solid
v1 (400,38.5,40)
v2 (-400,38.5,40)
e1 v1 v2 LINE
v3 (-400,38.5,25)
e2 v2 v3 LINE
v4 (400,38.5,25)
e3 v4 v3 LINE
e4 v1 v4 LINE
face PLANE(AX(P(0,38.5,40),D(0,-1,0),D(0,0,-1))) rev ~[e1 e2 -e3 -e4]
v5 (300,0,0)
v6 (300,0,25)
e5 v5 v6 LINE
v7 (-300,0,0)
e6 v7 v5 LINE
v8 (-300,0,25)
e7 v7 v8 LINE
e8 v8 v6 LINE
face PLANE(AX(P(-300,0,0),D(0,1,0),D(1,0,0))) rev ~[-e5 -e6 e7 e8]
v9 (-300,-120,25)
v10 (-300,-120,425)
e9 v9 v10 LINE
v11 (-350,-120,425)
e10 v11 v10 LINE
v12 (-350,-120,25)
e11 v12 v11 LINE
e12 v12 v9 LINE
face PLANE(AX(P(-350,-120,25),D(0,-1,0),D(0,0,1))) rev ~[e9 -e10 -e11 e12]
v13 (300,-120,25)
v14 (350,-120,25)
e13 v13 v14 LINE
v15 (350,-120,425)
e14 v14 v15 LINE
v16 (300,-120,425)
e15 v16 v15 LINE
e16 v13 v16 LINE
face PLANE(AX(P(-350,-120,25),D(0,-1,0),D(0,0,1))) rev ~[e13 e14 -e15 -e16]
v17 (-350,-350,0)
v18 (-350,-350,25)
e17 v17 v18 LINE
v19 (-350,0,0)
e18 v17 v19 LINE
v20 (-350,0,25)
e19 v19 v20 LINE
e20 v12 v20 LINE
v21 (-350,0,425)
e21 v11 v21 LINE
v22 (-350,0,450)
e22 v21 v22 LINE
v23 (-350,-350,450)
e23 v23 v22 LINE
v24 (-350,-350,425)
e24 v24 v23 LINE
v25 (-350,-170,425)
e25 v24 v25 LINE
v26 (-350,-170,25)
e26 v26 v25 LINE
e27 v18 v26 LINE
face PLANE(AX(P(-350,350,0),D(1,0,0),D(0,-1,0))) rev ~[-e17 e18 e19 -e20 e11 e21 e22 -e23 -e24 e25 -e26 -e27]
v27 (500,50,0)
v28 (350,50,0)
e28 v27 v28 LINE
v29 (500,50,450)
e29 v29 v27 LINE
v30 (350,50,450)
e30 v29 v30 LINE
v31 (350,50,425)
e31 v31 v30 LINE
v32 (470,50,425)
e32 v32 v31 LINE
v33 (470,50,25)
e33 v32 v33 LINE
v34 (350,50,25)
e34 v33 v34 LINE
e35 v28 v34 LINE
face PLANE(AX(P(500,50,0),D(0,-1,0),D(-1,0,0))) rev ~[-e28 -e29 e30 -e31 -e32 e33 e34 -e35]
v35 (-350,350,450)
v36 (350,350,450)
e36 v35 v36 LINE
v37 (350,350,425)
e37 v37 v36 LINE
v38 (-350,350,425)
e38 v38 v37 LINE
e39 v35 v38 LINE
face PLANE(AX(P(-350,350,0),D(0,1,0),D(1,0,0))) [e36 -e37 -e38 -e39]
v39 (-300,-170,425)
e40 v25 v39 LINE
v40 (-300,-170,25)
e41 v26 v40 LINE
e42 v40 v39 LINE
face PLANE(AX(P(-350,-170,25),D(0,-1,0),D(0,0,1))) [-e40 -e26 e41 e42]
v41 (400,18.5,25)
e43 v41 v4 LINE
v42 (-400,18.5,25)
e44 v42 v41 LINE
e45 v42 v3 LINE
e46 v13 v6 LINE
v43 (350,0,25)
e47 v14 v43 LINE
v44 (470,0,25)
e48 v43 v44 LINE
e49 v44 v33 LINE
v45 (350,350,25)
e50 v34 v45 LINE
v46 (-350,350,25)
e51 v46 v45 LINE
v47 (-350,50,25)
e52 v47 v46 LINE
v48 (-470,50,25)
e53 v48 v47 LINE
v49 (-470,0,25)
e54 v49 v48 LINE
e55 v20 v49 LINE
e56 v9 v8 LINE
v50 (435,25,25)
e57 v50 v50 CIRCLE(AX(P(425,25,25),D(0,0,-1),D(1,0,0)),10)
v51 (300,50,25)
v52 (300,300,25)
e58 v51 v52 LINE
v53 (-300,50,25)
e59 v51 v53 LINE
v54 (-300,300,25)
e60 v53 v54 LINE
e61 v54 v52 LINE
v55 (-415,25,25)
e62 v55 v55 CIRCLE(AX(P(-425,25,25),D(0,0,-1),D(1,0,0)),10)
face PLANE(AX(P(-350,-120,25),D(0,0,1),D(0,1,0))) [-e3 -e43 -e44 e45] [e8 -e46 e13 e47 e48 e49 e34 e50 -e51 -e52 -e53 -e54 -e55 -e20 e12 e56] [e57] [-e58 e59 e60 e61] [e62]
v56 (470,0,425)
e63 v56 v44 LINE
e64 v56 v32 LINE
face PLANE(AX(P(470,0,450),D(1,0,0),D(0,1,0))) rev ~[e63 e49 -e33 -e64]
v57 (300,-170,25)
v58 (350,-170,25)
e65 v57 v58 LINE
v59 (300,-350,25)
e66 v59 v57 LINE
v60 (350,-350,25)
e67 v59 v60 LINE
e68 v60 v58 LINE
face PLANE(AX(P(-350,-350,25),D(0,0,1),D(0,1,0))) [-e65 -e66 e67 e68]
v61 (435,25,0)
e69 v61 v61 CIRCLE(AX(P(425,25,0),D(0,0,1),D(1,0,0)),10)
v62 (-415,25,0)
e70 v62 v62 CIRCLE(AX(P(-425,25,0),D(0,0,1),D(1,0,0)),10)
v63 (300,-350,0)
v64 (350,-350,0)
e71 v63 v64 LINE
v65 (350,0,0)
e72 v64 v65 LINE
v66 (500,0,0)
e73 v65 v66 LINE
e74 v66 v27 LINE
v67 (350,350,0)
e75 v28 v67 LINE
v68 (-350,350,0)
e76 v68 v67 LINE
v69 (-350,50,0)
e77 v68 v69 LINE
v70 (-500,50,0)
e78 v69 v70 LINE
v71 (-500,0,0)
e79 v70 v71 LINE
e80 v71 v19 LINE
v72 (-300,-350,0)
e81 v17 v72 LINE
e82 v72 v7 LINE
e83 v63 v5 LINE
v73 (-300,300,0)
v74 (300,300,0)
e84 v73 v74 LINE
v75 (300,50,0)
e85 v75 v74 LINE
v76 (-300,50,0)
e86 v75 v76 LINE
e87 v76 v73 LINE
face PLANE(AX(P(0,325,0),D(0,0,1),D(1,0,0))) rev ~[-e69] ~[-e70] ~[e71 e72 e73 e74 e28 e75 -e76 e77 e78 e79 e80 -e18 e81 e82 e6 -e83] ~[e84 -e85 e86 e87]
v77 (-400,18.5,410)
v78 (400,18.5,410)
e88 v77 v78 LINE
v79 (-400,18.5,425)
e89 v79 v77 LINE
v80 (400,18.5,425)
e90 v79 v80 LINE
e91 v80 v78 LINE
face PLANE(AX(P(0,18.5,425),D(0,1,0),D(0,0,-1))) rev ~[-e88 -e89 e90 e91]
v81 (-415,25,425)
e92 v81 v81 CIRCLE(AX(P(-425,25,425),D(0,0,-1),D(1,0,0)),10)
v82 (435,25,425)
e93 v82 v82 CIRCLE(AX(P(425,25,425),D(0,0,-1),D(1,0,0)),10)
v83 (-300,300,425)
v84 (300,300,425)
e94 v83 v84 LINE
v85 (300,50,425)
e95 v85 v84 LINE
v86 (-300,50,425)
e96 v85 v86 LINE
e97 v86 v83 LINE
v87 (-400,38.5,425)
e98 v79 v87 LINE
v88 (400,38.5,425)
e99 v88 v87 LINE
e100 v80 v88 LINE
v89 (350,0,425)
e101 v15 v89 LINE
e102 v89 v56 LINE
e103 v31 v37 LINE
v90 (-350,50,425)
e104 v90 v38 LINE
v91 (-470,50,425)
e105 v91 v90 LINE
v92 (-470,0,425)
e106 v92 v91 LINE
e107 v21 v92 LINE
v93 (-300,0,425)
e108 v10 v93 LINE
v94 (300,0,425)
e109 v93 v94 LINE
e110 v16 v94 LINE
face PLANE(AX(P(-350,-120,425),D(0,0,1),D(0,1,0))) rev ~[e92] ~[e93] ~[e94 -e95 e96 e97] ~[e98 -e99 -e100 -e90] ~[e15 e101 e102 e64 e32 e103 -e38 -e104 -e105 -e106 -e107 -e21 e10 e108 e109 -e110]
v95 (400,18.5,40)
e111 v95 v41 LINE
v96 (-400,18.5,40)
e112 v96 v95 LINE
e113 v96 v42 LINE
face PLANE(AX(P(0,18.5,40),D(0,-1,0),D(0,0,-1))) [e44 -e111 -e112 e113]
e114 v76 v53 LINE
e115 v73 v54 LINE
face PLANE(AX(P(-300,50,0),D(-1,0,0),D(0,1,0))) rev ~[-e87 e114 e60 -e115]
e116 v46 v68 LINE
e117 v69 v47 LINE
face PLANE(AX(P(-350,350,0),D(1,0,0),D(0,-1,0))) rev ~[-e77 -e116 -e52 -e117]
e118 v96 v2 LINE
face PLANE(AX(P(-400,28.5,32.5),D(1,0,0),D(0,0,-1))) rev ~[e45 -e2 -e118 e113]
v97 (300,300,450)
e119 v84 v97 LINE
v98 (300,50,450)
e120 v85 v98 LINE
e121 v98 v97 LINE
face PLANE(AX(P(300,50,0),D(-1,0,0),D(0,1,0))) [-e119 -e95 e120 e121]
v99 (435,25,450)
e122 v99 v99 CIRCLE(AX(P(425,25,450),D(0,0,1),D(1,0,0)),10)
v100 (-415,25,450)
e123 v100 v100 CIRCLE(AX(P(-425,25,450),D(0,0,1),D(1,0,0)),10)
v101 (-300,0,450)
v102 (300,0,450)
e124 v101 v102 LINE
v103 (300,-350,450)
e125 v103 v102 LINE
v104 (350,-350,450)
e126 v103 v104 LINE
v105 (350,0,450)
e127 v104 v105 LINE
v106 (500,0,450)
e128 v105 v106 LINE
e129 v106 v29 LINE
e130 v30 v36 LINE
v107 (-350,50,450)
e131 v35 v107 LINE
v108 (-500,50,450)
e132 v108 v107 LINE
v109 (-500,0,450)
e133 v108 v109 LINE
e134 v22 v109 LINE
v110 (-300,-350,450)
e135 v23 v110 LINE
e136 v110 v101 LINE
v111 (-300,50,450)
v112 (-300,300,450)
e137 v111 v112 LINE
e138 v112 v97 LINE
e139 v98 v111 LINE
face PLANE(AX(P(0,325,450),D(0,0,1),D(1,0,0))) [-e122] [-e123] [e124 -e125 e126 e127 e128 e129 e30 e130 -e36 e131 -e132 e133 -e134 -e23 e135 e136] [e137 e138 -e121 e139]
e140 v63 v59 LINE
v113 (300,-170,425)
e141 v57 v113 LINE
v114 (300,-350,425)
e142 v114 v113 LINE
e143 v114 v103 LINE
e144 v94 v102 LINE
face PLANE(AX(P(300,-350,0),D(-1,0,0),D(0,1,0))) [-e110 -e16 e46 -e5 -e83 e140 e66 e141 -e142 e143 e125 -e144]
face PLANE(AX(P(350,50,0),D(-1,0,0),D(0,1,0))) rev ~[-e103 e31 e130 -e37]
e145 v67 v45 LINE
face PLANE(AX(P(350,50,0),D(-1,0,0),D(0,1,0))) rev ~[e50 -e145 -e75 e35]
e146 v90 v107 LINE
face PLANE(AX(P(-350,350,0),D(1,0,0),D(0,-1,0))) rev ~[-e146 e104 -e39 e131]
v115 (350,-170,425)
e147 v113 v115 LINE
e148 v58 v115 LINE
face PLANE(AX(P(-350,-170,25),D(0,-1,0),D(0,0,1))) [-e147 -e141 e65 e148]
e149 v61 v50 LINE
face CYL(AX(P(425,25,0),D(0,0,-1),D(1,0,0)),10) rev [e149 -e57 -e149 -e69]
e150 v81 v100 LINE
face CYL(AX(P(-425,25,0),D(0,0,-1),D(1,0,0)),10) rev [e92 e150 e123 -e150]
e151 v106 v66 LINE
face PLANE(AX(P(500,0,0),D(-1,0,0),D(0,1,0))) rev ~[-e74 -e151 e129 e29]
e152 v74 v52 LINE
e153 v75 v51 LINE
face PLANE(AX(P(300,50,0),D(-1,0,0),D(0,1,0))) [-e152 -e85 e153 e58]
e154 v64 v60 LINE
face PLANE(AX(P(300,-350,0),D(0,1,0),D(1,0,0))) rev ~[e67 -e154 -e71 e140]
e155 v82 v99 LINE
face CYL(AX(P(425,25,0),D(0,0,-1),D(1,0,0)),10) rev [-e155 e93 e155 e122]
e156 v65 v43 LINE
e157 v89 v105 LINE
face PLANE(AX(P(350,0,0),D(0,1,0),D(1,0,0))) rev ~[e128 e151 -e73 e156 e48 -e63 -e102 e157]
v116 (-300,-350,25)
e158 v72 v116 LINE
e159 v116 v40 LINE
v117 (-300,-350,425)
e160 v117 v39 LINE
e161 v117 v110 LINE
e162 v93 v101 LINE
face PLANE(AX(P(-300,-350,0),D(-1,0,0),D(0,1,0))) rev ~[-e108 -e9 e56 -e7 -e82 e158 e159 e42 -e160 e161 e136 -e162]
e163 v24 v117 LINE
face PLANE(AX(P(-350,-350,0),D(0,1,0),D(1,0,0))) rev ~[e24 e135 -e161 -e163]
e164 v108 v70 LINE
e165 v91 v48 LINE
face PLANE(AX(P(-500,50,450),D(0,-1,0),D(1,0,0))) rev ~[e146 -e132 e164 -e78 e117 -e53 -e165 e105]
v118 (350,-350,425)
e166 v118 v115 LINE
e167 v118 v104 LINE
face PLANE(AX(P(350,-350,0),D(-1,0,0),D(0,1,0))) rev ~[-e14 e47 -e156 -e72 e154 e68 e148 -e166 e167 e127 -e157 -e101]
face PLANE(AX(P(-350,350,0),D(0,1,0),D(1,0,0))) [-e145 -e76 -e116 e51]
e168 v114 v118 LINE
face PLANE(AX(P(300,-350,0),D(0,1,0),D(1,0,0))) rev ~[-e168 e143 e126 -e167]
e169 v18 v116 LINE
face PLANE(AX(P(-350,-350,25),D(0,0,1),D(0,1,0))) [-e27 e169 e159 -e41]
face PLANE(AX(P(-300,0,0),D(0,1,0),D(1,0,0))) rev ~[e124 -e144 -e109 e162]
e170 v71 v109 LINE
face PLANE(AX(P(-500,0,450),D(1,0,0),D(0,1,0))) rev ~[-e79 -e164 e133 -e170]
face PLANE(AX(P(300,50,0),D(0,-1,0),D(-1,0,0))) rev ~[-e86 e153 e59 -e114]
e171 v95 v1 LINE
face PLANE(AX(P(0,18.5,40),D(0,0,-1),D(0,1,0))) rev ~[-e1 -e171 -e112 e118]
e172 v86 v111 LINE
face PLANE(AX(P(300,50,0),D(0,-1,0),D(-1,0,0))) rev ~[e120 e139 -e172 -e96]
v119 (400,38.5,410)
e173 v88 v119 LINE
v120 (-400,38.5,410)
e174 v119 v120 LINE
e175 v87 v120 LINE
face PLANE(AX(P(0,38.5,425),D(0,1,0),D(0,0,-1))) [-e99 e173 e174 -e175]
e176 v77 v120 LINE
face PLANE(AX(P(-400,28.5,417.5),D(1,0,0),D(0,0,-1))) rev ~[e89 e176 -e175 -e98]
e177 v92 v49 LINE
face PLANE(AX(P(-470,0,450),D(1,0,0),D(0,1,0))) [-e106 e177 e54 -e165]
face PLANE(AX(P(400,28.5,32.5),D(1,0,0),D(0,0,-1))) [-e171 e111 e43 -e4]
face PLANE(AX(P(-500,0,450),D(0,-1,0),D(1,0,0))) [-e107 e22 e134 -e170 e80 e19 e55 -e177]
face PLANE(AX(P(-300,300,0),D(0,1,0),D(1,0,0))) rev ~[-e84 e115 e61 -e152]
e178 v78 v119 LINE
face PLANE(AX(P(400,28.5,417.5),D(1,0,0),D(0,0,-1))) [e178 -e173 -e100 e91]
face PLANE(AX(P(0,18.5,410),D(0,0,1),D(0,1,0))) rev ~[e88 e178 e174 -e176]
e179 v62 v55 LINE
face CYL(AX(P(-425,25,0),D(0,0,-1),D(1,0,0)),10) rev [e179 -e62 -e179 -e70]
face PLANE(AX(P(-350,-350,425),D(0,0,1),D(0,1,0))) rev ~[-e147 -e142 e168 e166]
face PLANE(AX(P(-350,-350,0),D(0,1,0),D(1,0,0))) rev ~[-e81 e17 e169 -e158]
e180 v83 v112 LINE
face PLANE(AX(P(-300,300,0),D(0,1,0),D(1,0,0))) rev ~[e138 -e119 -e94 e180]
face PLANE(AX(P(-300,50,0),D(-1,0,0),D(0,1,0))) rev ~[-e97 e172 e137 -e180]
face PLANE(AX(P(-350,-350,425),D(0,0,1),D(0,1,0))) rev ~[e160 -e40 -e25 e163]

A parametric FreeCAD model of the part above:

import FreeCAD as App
import Part
import Sketcher

V = App.Vector

doc = App.newDocument("Part")
body = doc.addObject("PartDesign::Body", "Body")

sketch1 = body.newObject("Sketcher::SketchObject", "Sketch")
sketch1.AttachmentSupport = (doc.getObject("XY_Plane"), [""])
sketch1.MapMode = "FlatFace"
sketch1.addGeometry([
    Part.LineSegment(V(-350, 350, 0), V(-350, 50, 0)),
    Part.LineSegment(V(-350, 50, 0), V(-500, 50, 0)),
    Part.LineSegment(V(-500, 50, 0), V(-500, 0, 0)),
    Part.LineSegment(V(-500, 0, 0), V(-350, 0, 0)),
    Part.LineSegment(V(-350, 0, 0), V(-350, -350, 0)),
    Part.LineSegment(V(-350, -350, 0), V(-300, -350, 0)),
    Part.LineSegment(V(-300, -350, 0), V(-300, 0, 0)),
    Part.LineSegment(V(-300, 0, 0), V(300, 0, 0)),
    Part.LineSegment(V(300, 0, 0), V(300, -350, 0)),
    Part.LineSegment(V(300, -350, 0), V(350, -350, 0)),
    Part.LineSegment(V(350, -350, 0), V(350, 0, 0)),
    Part.LineSegment(V(350, 0, 0), V(500, 0, 0)),
    Part.LineSegment(V(500, 0, 0), V(500, 50, 0)),
    Part.LineSegment(V(500, 50, 0), V(350, 50, 0)),
    Part.LineSegment(V(350, 50, 0), V(350, 350, 0)),
    Part.LineSegment(V(350, 350, 0), V(-350, 350, 0)),
    Part.Circle(V(-425, 25, 0), V(0, 0, 1), 10),
    Part.Circle(V(425, 25, 0), V(0, 0, 1), 10),
    Part.LineSegment(V(-300, 50, 0), V(-300, 300, 0)),
    Part.LineSegment(V(-300, 300, 0), V(300, 300, 0)),
    Part.LineSegment(V(300, 300, 0), V(300, 50, 0)),
    Part.LineSegment(V(300, 50, 0), V(-300, 50, 0)),
], False)
sketch1.addConstraint([
    Sketcher.Constraint("Coincident", 0, 2, 1, 1),
    Sketcher.Constraint("Coincident", 1, 2, 2, 1),
    Sketcher.Constraint("Coincident", 2, 2, 3, 1),
    Sketcher.Constraint("Coincident", 3, 2, 4, 1),
    Sketcher.Constraint("Coincident", 4, 2, 5, 1),
    Sketcher.Constraint("Coincident", 5, 2, 6, 1),
    Sketcher.Constraint("Coincident", 6, 2, 7, 1),
    Sketcher.Constraint("Coincident", 7, 2, 8, 1),
    Sketcher.Constraint("Coincident", 8, 2, 9, 1),
    Sketcher.Constraint("Coincident", 9, 2, 10, 1),
    Sketcher.Constraint("Coincident", 10, 2, 11, 1),
    Sketcher.Constraint("Coincident", 11, 2, 12, 1),
    Sketcher.Constraint("Coincident", 12, 2, 13, 1),
    Sketcher.Constraint("Coincident", 13, 2, 14, 1),
    Sketcher.Constraint("Coincident", 14, 2, 15, 1),
    Sketcher.Constraint("Coincident", 15, 2, 0, 1),
    Sketcher.Constraint("Coincident", 18, 2, 19, 1),
    Sketcher.Constraint("Coincident", 19, 2, 20, 1),
    Sketcher.Constraint("Coincident", 20, 2, 21, 1),
    Sketcher.Constraint("Coincident", 21, 2, 18, 1),
    Sketcher.Constraint("Vertical", 0),
    Sketcher.Constraint("Horizontal", 1),
    Sketcher.Constraint("Vertical", 2),
    Sketcher.Constraint("Horizontal", 3),
    Sketcher.Constraint("Vertical", 4),
    Sketcher.Constraint("Horizontal", 5),
    Sketcher.Constraint("Vertical", 6),
    Sketcher.Constraint("Horizontal", 7),
    Sketcher.Constraint("Vertical", 8),
    Sketcher.Constraint("Horizontal", 9),
    Sketcher.Constraint("Vertical", 10),
    Sketcher.Constraint("Horizontal", 11),
    Sketcher.Constraint("Vertical", 12),
    Sketcher.Constraint("Horizontal", 13),
    Sketcher.Constraint("Vertical", 14),
    Sketcher.Constraint("Horizontal", 15),
    Sketcher.Constraint("Vertical", 18),
    Sketcher.Constraint("Horizontal", 19),
    Sketcher.Constraint("Vertical", 20),
    Sketcher.Constraint("Horizontal", 21),
    Sketcher.Constraint("Equal", 16, 17),
    Sketcher.Constraint("Symmetric", 6, 2, 7, 2, -1, 1),
    Sketcher.Constraint("Symmetric", 3, 2, 10, 2, -1, 1),
    Sketcher.Constraint("Symmetric", 4, 2, 14, 2, -1, 1),
    Sketcher.Constraint("Symmetric", 9, 2, 15, 2, -1, 1),
    Sketcher.Constraint("Symmetric", 16, 3, 17, 3, -2),
    Sketcher.Constraint("Symmetric", 2, 2, 11, 2, -2),
    Sketcher.Constraint("Horizontal", 1, 2, 12, 2),
    Sketcher.Constraint("Horizontal", 13, 2, 20, 2),
    Sketcher.Constraint("Vertical", 6, 2, 18, 2),
    Sketcher.Constraint("Vertical", 8, 2, 19, 2),
    Sketcher.Constraint("Equal", 9, 2),
    Sketcher.Constraint("Diameter", 16, 20.0),
    Sketcher.Constraint("DistanceX", 1, 2, 1, 1, 150.0),
    Sketcher.Constraint("DistanceX", 5, 1, 5, 2, 50.0),
    Sketcher.Constraint("DistanceX", 7, 1, 7, 2, 600.0),
    Sketcher.Constraint("DistanceY", 0, 2, 0, 1, 300.0),
    Sketcher.Constraint("DistanceY", 18, 1, 18, 2, 250.0),
    Sketcher.Constraint("DistanceX", 16, 3, -1, 1, 425.0),
    Sketcher.Constraint("DistanceY", -1, 1, 16, 3, 25.0),
])
pad1 = body.newObject("PartDesign::Pad", "Pad")
pad1.Profile = sketch1
pad1.Length = 450

sketch2 = body.newObject("Sketcher::SketchObject", "Sketch001")
sketch2.AttachmentSupport = (doc.getObject("YZ_Plane"), [""])
sketch2.MapMode = "FlatFace"
sketch2.AttachmentOffset = App.Placement(V(0, 0, -350), App.Rotation())
sketch2.addGeometry([
    Part.LineSegment(V(350, 25, 0), V(-120, 25, 0)),
    Part.LineSegment(V(-120, 25, 0), V(-120, 425, 0)),
    Part.LineSegment(V(-120, 425, 0), V(350, 425, 0)),
    Part.LineSegment(V(350, 425, 0), V(350, 25, 0)),
    Part.LineSegment(V(-170, 25, 0), V(-350, 25, 0)),
    Part.LineSegment(V(-350, 25, 0), V(-350, 425, 0)),
    Part.LineSegment(V(-350, 425, 0), V(-170, 425, 0)),
    Part.LineSegment(V(-170, 425, 0), V(-170, 25, 0)),
], False)
sketch2.addConstraint([
    Sketcher.Constraint("Coincident", 0, 2, 1, 1),
    Sketcher.Constraint("Coincident", 1, 2, 2, 1),
    Sketcher.Constraint("Coincident", 2, 2, 3, 1),
    Sketcher.Constraint("Coincident", 3, 2, 0, 1),
    Sketcher.Constraint("Coincident", 4, 2, 5, 1),
    Sketcher.Constraint("Coincident", 5, 2, 6, 1),
    Sketcher.Constraint("Coincident", 6, 2, 7, 1),
    Sketcher.Constraint("Coincident", 7, 2, 4, 1),
    Sketcher.Constraint("Horizontal", 0),
    Sketcher.Constraint("Vertical", 1),
    Sketcher.Constraint("Horizontal", 2),
    Sketcher.Constraint("Vertical", 3),
    Sketcher.Constraint("Horizontal", 4),
    Sketcher.Constraint("Vertical", 5),
    Sketcher.Constraint("Horizontal", 6),
    Sketcher.Constraint("Vertical", 7),
    Sketcher.Constraint("Symmetric", 3, 2, 4, 2, -2),
    Sketcher.Constraint("Horizontal", 2, 2, 5, 2),
    Sketcher.Constraint("DistanceX", 0, 2, 0, 1, 470.0),
    Sketcher.Constraint("DistanceX", 4, 2, 4, 1, 180.0),
    Sketcher.Constraint("DistanceY", 1, 1, 1, 2, 400.0),
    Sketcher.Constraint("DistanceX", 0, 2, -1, 1, 120.0),
    Sketcher.Constraint("DistanceY", -1, 1, 0, 2, 25.0),
])
pocket1 = body.newObject("PartDesign::Pocket", "Pocket")
pocket1.Profile = sketch2
pocket1.Type = "ThroughAll"
pocket1.Midplane = True

sketch3 = body.newObject("Sketcher::SketchObject", "Sketch002")
sketch3.AttachmentSupport = (doc.getObject("XY_Plane"), [""])
sketch3.MapMode = "FlatFace"
sketch3.AttachmentOffset = App.Placement(V(0, 0, 450), App.Rotation())
sketch3.addGeometry([
    Part.LineSegment(V(-500, 50, 0), V(-500, 0, 0)),
    Part.LineSegment(V(-500, 0, 0), V(-470, 0, 0)),
    Part.LineSegment(V(-470, 0, 0), V(-470, 50, 0)),
    Part.LineSegment(V(-470, 50, 0), V(-500, 50, 0)),
    Part.LineSegment(V(470, 50, 0), V(470, 0, 0)),
    Part.LineSegment(V(470, 0, 0), V(500, 0, 0)),
    Part.LineSegment(V(500, 0, 0), V(500, 50, 0)),
    Part.LineSegment(V(500, 50, 0), V(470, 50, 0)),
], False)
sketch3.addConstraint([
    Sketcher.Constraint("Coincident", 0, 2, 1, 1),
    Sketcher.Constraint("Coincident", 1, 2, 2, 1),
    Sketcher.Constraint("Coincident", 2, 2, 3, 1),
    Sketcher.Constraint("Coincident", 3, 2, 0, 1),
    Sketcher.Constraint("Coincident", 4, 2, 5, 1),
    Sketcher.Constraint("Coincident", 5, 2, 6, 1),
    Sketcher.Constraint("Coincident", 6, 2, 7, 1),
    Sketcher.Constraint("Coincident", 7, 2, 4, 1),
    Sketcher.Constraint("Vertical", 0),
    Sketcher.Constraint("Horizontal", 1),
    Sketcher.Constraint("Vertical", 2),
    Sketcher.Constraint("Horizontal", 3),
    Sketcher.Constraint("Vertical", 4),
    Sketcher.Constraint("Horizontal", 5),
    Sketcher.Constraint("Vertical", 6),
    Sketcher.Constraint("Horizontal", 7),
    Sketcher.Constraint("Symmetric", 1, 2, 4, 2, -1, 1),
    Sketcher.Constraint("Symmetric", 0, 2, 5, 2, -2),
    Sketcher.Constraint("Horizontal", 3, 2, 6, 2),
    Sketcher.Constraint("DistanceX", 1, 1, 1, 2, 30.0),
    Sketcher.Constraint("DistanceY", 0, 2, 0, 1, 50.0),
    Sketcher.Constraint("DistanceX", 0, 2, -1, 1, 500.0),
])
pad2 = body.newObject("PartDesign::Pad", "Pad001")
pad2.Profile = sketch3
pad2.Length = 425
pad2.Reversed = True

sketch4 = body.newObject("Sketcher::SketchObject", "Sketch003")
sketch4.AttachmentSupport = (doc.getObject("YZ_Plane"), [""])
sketch4.MapMode = "FlatFace"
sketch4.addGeometry([
    Part.LineSegment(V(38, 40, 0), V(18, 40, 0)),
    Part.LineSegment(V(18, 40, 0), V(18, 25, 0)),
    Part.LineSegment(V(18, 25, 0), V(38, 25, 0)),
    Part.LineSegment(V(38, 25, 0), V(38, 40, 0)),
    Part.LineSegment(V(38, 425, 0), V(18, 425, 0)),
    Part.LineSegment(V(18, 425, 0), V(18, 410, 0)),
    Part.LineSegment(V(18, 410, 0), V(38, 410, 0)),
    Part.LineSegment(V(38, 410, 0), V(38, 425, 0)),
], False)
sketch4.addConstraint([
    Sketcher.Constraint("Coincident", 0, 2, 1, 1),
    Sketcher.Constraint("Coincident", 1, 2, 2, 1),
    Sketcher.Constraint("Coincident", 2, 2, 3, 1),
    Sketcher.Constraint("Coincident", 3, 2, 0, 1),
    Sketcher.Constraint("Coincident", 4, 2, 5, 1),
    Sketcher.Constraint("Coincident", 5, 2, 6, 1),
    Sketcher.Constraint("Coincident", 6, 2, 7, 1),
    Sketcher.Constraint("Coincident", 7, 2, 4, 1),
    Sketcher.Constraint("Horizontal", 0),
    Sketcher.Constraint("Vertical", 1),
    Sketcher.Constraint("Horizontal", 2),
    Sketcher.Constraint("Vertical", 3),
    Sketcher.Constraint("Horizontal", 4),
    Sketcher.Constraint("Vertical", 5),
    Sketcher.Constraint("Horizontal", 6),
    Sketcher.Constraint("Vertical", 7),
    Sketcher.Constraint("Vertical", 1, 2, 4, 2),
    Sketcher.Constraint("Vertical", 3, 2, 6, 2),
    Sketcher.Constraint("Equal", 3, 5),
    Sketcher.Constraint("DistanceX", 0, 2, 0, 1, 20.0),
    Sketcher.Constraint("DistanceY", 1, 2, 1, 1, 15.0),
    Sketcher.Constraint("DistanceY", -1, 1, 0, 2, 40.0),
    Sketcher.Constraint("DistanceY", -1, 1, 4, 2, 425.0),
    Sketcher.Constraint("DistanceX", -1, 1, 0, 2, 18.5),
])
pad3 = body.newObject("PartDesign::Pad", "Pad002")
pad3.Profile = sketch4
pad3.Type = "TwoLengths"
pad3.Length = 400
pad3.Length2 = 400

doc.recompute()
